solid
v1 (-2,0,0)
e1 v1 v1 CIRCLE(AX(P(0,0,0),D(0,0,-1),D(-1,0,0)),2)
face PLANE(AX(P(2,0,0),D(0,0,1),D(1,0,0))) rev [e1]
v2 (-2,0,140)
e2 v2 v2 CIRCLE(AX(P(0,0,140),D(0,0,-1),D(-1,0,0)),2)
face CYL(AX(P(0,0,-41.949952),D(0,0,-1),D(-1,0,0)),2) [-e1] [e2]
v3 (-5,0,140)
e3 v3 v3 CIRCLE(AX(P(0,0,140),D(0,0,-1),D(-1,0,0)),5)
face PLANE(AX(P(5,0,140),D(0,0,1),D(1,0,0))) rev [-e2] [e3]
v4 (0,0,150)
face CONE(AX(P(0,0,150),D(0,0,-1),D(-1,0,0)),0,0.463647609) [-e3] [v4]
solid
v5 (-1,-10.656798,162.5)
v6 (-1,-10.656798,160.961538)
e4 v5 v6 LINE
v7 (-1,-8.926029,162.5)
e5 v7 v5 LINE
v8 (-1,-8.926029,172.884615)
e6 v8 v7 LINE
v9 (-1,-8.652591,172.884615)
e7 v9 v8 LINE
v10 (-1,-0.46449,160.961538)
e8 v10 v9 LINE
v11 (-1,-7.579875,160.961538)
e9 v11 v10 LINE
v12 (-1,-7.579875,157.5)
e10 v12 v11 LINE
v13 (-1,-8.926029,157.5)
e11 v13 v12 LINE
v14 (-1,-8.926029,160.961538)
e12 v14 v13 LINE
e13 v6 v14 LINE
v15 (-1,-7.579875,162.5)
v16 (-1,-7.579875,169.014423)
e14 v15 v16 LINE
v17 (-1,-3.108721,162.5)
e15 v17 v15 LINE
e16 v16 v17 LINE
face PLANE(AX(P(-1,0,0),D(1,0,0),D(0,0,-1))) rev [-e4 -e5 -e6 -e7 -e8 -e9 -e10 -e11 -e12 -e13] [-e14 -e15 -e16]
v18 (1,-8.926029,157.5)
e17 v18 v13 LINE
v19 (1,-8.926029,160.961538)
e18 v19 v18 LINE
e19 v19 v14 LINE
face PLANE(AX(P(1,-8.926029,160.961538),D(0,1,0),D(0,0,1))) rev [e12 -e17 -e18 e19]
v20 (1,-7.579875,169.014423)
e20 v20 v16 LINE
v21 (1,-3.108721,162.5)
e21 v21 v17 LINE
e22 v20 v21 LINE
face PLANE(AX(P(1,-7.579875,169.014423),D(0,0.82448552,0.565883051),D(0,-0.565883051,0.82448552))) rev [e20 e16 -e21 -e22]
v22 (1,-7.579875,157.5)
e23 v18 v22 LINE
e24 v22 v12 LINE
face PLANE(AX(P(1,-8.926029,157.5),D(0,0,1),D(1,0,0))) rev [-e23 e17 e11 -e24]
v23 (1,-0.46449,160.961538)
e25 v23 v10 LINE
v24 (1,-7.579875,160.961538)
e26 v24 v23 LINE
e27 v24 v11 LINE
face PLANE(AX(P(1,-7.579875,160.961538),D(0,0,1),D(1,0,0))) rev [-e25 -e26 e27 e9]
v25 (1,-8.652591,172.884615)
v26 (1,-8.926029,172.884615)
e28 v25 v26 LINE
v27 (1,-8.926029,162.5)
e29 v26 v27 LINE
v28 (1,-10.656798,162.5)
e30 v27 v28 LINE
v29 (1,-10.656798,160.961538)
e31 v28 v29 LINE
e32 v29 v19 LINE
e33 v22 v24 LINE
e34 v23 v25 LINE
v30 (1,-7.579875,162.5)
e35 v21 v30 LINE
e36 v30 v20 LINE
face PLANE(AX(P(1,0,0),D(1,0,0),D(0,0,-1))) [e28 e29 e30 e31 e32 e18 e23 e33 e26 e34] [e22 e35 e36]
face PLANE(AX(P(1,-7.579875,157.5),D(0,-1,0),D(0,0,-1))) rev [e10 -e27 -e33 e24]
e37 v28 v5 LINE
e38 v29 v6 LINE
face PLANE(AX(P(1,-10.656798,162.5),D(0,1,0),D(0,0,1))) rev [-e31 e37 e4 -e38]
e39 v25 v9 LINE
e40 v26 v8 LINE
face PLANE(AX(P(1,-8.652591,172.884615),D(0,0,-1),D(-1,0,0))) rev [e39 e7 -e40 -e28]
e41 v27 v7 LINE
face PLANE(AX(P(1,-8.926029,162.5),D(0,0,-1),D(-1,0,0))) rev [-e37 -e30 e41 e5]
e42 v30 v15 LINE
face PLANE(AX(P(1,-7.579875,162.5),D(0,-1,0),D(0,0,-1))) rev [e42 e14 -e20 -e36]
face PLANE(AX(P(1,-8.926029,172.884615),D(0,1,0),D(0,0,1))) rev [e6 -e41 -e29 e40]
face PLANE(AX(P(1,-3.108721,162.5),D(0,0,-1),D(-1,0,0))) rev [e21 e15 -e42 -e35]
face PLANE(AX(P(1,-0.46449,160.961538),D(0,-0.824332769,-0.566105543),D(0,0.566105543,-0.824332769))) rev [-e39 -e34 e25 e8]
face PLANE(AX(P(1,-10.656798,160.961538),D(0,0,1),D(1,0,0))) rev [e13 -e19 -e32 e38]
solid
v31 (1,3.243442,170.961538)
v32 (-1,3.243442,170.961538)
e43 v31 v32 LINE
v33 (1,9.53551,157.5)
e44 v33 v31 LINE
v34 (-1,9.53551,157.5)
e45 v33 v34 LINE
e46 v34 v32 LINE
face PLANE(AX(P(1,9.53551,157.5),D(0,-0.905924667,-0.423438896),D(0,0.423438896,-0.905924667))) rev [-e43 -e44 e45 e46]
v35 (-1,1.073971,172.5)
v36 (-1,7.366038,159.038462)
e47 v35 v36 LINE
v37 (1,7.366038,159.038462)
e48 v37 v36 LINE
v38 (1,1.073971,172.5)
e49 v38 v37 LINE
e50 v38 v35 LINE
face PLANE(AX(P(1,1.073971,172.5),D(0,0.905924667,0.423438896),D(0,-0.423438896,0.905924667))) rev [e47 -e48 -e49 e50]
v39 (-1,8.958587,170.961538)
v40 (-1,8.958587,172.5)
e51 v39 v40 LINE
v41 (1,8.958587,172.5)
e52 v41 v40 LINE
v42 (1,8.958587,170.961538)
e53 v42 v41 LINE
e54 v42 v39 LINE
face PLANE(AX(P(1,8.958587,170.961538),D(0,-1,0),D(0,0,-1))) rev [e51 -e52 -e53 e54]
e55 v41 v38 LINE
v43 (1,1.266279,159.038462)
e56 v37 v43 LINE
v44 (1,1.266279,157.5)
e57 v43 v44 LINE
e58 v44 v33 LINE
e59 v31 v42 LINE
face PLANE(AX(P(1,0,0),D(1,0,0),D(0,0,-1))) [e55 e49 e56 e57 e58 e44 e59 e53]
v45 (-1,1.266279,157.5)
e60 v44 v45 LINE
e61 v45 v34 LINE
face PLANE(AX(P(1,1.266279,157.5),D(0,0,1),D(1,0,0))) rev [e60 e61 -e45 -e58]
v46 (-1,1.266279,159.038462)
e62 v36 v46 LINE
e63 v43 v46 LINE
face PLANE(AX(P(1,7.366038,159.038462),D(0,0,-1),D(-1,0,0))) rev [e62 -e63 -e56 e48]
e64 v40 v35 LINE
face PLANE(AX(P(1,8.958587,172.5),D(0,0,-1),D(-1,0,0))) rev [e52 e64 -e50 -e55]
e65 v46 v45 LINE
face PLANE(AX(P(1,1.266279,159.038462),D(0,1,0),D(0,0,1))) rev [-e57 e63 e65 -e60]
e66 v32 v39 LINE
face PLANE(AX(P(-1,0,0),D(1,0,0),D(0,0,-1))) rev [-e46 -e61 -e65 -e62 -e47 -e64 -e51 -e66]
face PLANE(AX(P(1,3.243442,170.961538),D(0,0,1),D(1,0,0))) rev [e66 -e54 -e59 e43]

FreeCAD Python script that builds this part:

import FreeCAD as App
import Part
import Sketcher
from FreeCAD import Vector
Q = App.Units.Quantity

doc = App.newDocument("Part")
body = doc.addObject("PartDesign::Body", "Body")

# Sketch on XZ plane
sketch1 = body.newObject("Sketcher::SketchObject", "Sketch")
sketch1.AttachmentSupport = (doc.getObject("XZ_Plane"), [""])
sketch1.MapMode = "FlatFace"
sketch1.addGeometry(Part.LineSegment(Vector(0, 150, 0), Vector(5, 140, 0)), False)
sketch1.addGeometry(Part.LineSegment(Vector(5, 140, 0), Vector(2, 140, 0)), False)
sketch1.addGeometry(Part.LineSegment(Vector(2, 140, 0), Vector(2, 0, 0)), False)
sketch1.addGeometry(Part.LineSegment(Vector(2, 0, 0), Vector(0, 0, 0)), False)
sketch1.addGeometry(Part.LineSegment(Vector(0, 0, 0), Vector(0, 150, 0)), False)
sketch1.addConstraint(Sketcher.Constraint("Coincident", 0, 2, 1, 1))
sketch1.addConstraint(Sketcher.Constraint("Coincident", 1, 2, 2, 1))
sketch1.addConstraint(Sketcher.Constraint("Coincident", 2, 2, 3, 1))
sketch1.addConstraint(Sketcher.Constraint("Coincident", 3, 2, 4, 1))
sketch1.addConstraint(Sketcher.Constraint("Coincident", 4, 2, 0, 1))
sketch1.addConstraint(Sketcher.Constraint("Horizontal", 1))
sketch1.addConstraint(Sketcher.Constraint("Vertical", 2))
sketch1.addConstraint(Sketcher.Constraint("Horizontal", 3))
sketch1.addConstraint(Sketcher.Constraint("Vertical", 4))
sketch1.addConstraint(Sketcher.Constraint("Coincident", 3, 2, -1, 1))
sketch1.addConstraint(Sketcher.Constraint("DistanceX", 1, 2, 1, 1, Q("3 mm")))
sketch1.addConstraint(Sketcher.Constraint("DistanceX", 3, 2, 3, 1, Q("2 mm")))
sketch1.addConstraint(Sketcher.Constraint("DistanceY", 2, 2, 2, 1, Q("140 mm")))
sketch1.addConstraint(Sketcher.Constraint("DistanceY", 4, 1, 4, 2, Q("150 mm")))
revolution = body.newObject("PartDesign::Revolution", "Revolution")
revolution.Profile = sketch1
revolution.ReferenceAxis = (sketch1, ["V_Axis"])
revolution.Angle = 360
body2 = doc.addObject("PartDesign::Body", "Body001")

# Sketch on YZ plane
sketch2 = body2.newObject("Sketcher::SketchObject", "Sketch001")
sketch2.AttachmentSupport = (doc.getObject("YZ_Plane001"), [""])
sketch2.MapMode = "FlatFace"
sketch2.addGeometry(Part.LineSegment(Vector(9, 171, 0), Vector(9, 172.5, 0)), False)
sketch2.addGeometry(Part.LineSegment(Vector(9, 172.5, 0), Vector(1.1, 172.5, 0)), False)
sketch2.addGeometry(Part.LineSegment(Vector(1.1, 172.5, 0), Vector(7.4, 159, 0)), False)
sketch2.addGeometry(Part.LineSegment(Vector(7.4, 159, 0), Vector(1.3, 159, 0)), False)
sketch2.addGeometry(Part.LineSegment(Vector(1.3, 159, 0), Vector(1.3, 157.5, 0)), False)
sketch2.addGeometry(Part.LineSegment(Vector(1.3, 157.5, 0), Vector(9.5, 157.5, 0)), False)
sketch2.addGeometry(Part.LineSegment(Vector(9.5, 157.5, 0), Vector(3.2, 171, 0)), False)
sketch2.addGeometry(Part.LineSegment(Vector(3.2, 171, 0), Vector(9, 171, 0)), False)
sketch2.addConstraint(Sketcher.Constraint("Coincident", 0, 2, 1, 1))
sketch2.addConstraint(Sketcher.Constraint("Coincident", 1, 2, 2, 1))
sketch2.addConstraint(Sketcher.Constraint("Coincident", 2, 2, 3, 1))
sketch2.addConstraint(Sketcher.Constraint("Coincident", 3, 2, 4, 1))
sketch2.addConstraint(Sketcher.Constraint("Coincident", 4, 2, 5, 1))
sketch2.addConstraint(Sketcher.Constraint("Coincident", 5, 2, 6, 1))
sketch2.addConstraint(Sketcher.Constraint("Coincident", 6, 2, 7, 1))
sketch2.addConstraint(Sketcher.Constraint("Coincident", 7, 2, 0, 1))
sketch2.addConstraint(Sketcher.Constraint("Vertical", 0))
sketch2.addConstraint(Sketcher.Constraint("Horizontal", 1))
sketch2.addConstraint(Sketcher.Constraint("Horizontal", 3))
sketch2.addConstraint(Sketcher.Constraint("Vertical", 4))
sketch2.addConstraint(Sketcher.Constraint("Horizontal", 5))
sketch2.addConstraint(Sketcher.Constraint("Horizontal", 7))
sketch2.addConstraint(Sketcher.Constraint("Parallel", 2, 6))
sketch2.addConstraint(Sketcher.Constraint("Equal", 0, 4))
sketch2.addConstraint(Sketcher.Constraint("DistanceY", 4, 2, 1, 2, Q("15 mm")))
sketch2.addConstraint(Sketcher.Constraint("DistanceY", -1, 1, 0, 2, Q("172.5 mm")))
sketch2.addConstraint(Sketcher.Constraint("DistanceX", 3, 2, 3, 1, Q("6.09976 mm")))
sketch2.addConstraint(Sketcher.Constraint("DistanceX", 5, 1, 5, 2, Q("8.269231 mm")))
sketch2.addConstraint(Sketcher.Constraint("DistanceY", 0, 1, 0, 2, Q("1.538462 mm")))
sketch2.addConstraint(Sketcher.Constraint("DistanceX", 1, 2, 1, 1, Q("7.884615 mm")))
sketch2.addConstraint(Sketcher.Constraint("DistanceX", -1, 1, 1, 2, Q("1.073971 mm")))
sketch2.addConstraint(Sketcher.Constraint("DistanceX", -1, 1, 2, 2, Q("7.366038 mm")))
pad1 = body2.newObject("PartDesign::Pad", "Pad")
pad1.Profile = sketch2
pad1.Type = "TwoLengths"
pad1.Length = 1
pad1.Length2 = 1
body3 = doc.addObject("PartDesign::Body", "Body002")

# Sketch on YZ plane
sketch3 = body3.newObject("Sketcher::SketchObject", "Sketch002")
sketch3.AttachmentSupport = (doc.getObject("YZ_Plane002"), [""])
sketch3.MapMode = "FlatFace"
sketch3.addGeometry(Part.LineSegment(Vector(-8.65, 172.88, 0), Vector(-8.93, 172.88, 0)), False)
sketch3.addGeometry(Part.LineSegment(Vector(-8.93, 172.88, 0), Vector(-8.93, 162.5, 0)), False)
sketch3.addGeometry(Part.LineSegment(Vector(-8.93, 162.5, 0), Vector(-10.66, 162.5, 0)), False)
sketch3.addGeometry(Part.LineSegment(Vector(-10.66, 162.5, 0), Vector(-10.66, 160.96, 0)), False)
sketch3.addGeometry(Part.LineSegment(Vector(-10.66, 160.96, 0), Vector(-8.93, 160.96, 0)), False)
sketch3.addGeometry(Part.LineSegment(Vector(-8.93, 160.96, 0), Vector(-8.93, 157.5, 0)), False)
sketch3.addGeometry(Part.LineSegment(Vector(-8.93, 157.5, 0), Vector(-7.58, 157.5, 0)), False)
sketch3.addGeometry(Part.LineSegment(Vector(-7.58, 157.5, 0), Vector(-7.58, 160.96, 0)), False)
sketch3.addGeometry(Part.LineSegment(Vector(-7.58, 160.96, 0), Vector(-0.46, 160.96, 0)), False)
sketch3.addGeometry(Part.LineSegment(Vector(-0.46, 160.96, 0), Vector(-8.65, 172.88, 0)), False)
sketch3.addGeometry(Part.LineSegment(Vector(-3.11, 162.5, 0), Vector(-7.58, 162.5, 0)), False)
sketch3.addGeometry(Part.LineSegment(Vector(-7.58, 162.5, 0), Vector(-7.58, 169.01, 0)), False)
sketch3.addGeometry(Part.LineSegment(Vector(-7.58, 169.01, 0), Vector(-3.11, 162.5, 0)), False)
sketch3.addConstraint(Sketcher.Constraint("Coincident", 0, 2, 1, 1))
sketch3.addConstraint(Sketcher.Constraint("Coincident", 1, 2, 2, 1))
sketch3.addConstraint(Sketcher.Constraint("Coincident", 2, 2, 3, 1))
sketch3.addConstraint(Sketcher.Constraint("Coincident", 3, 2, 4, 1))
sketch3.addConstraint(Sketcher.Constraint("Coincident", 4, 2, 5, 1))
sketch3.addConstraint(Sketcher.Constraint("Coincident", 5, 2, 6, 1))
sketch3.addConstraint(Sketcher.Constraint("Coincident", 6, 2, 7, 1))
sketch3.addConstraint(Sketcher.Constraint("Coincident", 7, 2, 8, 1))
sketch3.addConstraint(Sketcher.Constraint("Coincident", 8, 2, 9, 1))
sketch3.addConstraint(Sketcher.Constraint("Coincident", 9, 2, 0, 1))
sketch3.addConstraint(Sketcher.Constraint("Coincident", 10, 2, 11, 1))
sketch3.addConstraint(Sketcher.Constraint("Coincident", 11, 2, 12, 1))
sketch3.addConstraint(Sketcher.Constraint("Coincident", 12, 2, 10, 1))
sketch3.addConstraint(Sketcher.Constraint("Horizontal", 0))
sketch3.addConstraint(Sketcher.Constraint("Vertical", 1))
sketch3.addConstraint(Sketcher.Constraint("Horizontal", 2))
sketch3.addConstraint(Sketcher.Constraint("Vertical", 3))
sketch3.addConstraint(Sketcher.Constraint("Horizontal", 4))
sketch3.addConstraint(Sketcher.Constraint("Vertical", 5))
sketch3.addConstraint(Sketcher.Constraint("Horizontal", 6))
sketch3.addConstraint(Sketcher.Constraint("Vertical", 7))
sketch3.addConstraint(Sketcher.Constraint("Horizontal", 8))
sketch3.addConstraint(Sketcher.Constraint("Horizontal", 10))
sketch3.addConstraint(Sketcher.Constraint("Vertical", 11))
sketch3.addConstraint(Sketcher.Constraint("Horizontal", 4, 2, 7, 2))
sketch3.addConstraint(Sketcher.Constraint("Horizontal", 2, 2, 10, 2))
sketch3.addConstraint(Sketcher.Constraint("Vertical", 1, 2, 4, 2))
sketch3.addConstraint(Sketcher.Constraint("Vertical", 7, 2, 10, 2))
sketch3.addConstraint(Sketcher.Constraint("DistanceY", 5, 2, 1, 2, Q("5 mm")))
sketch3.addConstraint(Sketcher.Constraint("DistanceY", -1, 1, 1, 2, Q("162.5 mm")))
sketch3.addConstraint(Sketcher.Constraint("DistanceX", 2, 2, 2, 1, Q("1.730769 mm")))
sketch3.addConstraint(Sketcher.Constraint("DistanceY", 3, 2, 3, 1, Q("1.538462 mm")))
sketch3.addConstraint(Sketcher.Constraint("DistanceX", 2, 2, -1, 1, Q("10.656798 mm")))
sketch3.addConstraint(Sketcher.Constraint("DistanceX", 0, 2, 0, 1, Q("0.273438 mm")))
sketch3.addConstraint(Sketcher.Constraint("DistanceX", 6, 1, 6, 2, Q("1.346154 mm")))
sketch3.addConstraint(Sketcher.Constraint("DistanceX", 8, 1, 8, 2, Q("7.115385 mm")))
sketch3.addConstraint(Sketcher.Constraint("DistanceX", 10, 2, 10, 1, Q("4.471154 mm")))
sketch3.addConstraint(Sketcher.Constraint("DistanceY", 1, 2, 1, 1, Q("10.384615 mm")))
sketch3.addConstraint(Sketcher.Constraint("DistanceY", 11, 1, 11, 2, Q("6.514423 mm")))
pad2 = body3.newObject("PartDesign::Pad", "Pad001")
pad2.Profile = sketch3
pad2.Type = "TwoLengths"
pad2.Length = 1
pad2.Length2 = 1

doc.recompute()
